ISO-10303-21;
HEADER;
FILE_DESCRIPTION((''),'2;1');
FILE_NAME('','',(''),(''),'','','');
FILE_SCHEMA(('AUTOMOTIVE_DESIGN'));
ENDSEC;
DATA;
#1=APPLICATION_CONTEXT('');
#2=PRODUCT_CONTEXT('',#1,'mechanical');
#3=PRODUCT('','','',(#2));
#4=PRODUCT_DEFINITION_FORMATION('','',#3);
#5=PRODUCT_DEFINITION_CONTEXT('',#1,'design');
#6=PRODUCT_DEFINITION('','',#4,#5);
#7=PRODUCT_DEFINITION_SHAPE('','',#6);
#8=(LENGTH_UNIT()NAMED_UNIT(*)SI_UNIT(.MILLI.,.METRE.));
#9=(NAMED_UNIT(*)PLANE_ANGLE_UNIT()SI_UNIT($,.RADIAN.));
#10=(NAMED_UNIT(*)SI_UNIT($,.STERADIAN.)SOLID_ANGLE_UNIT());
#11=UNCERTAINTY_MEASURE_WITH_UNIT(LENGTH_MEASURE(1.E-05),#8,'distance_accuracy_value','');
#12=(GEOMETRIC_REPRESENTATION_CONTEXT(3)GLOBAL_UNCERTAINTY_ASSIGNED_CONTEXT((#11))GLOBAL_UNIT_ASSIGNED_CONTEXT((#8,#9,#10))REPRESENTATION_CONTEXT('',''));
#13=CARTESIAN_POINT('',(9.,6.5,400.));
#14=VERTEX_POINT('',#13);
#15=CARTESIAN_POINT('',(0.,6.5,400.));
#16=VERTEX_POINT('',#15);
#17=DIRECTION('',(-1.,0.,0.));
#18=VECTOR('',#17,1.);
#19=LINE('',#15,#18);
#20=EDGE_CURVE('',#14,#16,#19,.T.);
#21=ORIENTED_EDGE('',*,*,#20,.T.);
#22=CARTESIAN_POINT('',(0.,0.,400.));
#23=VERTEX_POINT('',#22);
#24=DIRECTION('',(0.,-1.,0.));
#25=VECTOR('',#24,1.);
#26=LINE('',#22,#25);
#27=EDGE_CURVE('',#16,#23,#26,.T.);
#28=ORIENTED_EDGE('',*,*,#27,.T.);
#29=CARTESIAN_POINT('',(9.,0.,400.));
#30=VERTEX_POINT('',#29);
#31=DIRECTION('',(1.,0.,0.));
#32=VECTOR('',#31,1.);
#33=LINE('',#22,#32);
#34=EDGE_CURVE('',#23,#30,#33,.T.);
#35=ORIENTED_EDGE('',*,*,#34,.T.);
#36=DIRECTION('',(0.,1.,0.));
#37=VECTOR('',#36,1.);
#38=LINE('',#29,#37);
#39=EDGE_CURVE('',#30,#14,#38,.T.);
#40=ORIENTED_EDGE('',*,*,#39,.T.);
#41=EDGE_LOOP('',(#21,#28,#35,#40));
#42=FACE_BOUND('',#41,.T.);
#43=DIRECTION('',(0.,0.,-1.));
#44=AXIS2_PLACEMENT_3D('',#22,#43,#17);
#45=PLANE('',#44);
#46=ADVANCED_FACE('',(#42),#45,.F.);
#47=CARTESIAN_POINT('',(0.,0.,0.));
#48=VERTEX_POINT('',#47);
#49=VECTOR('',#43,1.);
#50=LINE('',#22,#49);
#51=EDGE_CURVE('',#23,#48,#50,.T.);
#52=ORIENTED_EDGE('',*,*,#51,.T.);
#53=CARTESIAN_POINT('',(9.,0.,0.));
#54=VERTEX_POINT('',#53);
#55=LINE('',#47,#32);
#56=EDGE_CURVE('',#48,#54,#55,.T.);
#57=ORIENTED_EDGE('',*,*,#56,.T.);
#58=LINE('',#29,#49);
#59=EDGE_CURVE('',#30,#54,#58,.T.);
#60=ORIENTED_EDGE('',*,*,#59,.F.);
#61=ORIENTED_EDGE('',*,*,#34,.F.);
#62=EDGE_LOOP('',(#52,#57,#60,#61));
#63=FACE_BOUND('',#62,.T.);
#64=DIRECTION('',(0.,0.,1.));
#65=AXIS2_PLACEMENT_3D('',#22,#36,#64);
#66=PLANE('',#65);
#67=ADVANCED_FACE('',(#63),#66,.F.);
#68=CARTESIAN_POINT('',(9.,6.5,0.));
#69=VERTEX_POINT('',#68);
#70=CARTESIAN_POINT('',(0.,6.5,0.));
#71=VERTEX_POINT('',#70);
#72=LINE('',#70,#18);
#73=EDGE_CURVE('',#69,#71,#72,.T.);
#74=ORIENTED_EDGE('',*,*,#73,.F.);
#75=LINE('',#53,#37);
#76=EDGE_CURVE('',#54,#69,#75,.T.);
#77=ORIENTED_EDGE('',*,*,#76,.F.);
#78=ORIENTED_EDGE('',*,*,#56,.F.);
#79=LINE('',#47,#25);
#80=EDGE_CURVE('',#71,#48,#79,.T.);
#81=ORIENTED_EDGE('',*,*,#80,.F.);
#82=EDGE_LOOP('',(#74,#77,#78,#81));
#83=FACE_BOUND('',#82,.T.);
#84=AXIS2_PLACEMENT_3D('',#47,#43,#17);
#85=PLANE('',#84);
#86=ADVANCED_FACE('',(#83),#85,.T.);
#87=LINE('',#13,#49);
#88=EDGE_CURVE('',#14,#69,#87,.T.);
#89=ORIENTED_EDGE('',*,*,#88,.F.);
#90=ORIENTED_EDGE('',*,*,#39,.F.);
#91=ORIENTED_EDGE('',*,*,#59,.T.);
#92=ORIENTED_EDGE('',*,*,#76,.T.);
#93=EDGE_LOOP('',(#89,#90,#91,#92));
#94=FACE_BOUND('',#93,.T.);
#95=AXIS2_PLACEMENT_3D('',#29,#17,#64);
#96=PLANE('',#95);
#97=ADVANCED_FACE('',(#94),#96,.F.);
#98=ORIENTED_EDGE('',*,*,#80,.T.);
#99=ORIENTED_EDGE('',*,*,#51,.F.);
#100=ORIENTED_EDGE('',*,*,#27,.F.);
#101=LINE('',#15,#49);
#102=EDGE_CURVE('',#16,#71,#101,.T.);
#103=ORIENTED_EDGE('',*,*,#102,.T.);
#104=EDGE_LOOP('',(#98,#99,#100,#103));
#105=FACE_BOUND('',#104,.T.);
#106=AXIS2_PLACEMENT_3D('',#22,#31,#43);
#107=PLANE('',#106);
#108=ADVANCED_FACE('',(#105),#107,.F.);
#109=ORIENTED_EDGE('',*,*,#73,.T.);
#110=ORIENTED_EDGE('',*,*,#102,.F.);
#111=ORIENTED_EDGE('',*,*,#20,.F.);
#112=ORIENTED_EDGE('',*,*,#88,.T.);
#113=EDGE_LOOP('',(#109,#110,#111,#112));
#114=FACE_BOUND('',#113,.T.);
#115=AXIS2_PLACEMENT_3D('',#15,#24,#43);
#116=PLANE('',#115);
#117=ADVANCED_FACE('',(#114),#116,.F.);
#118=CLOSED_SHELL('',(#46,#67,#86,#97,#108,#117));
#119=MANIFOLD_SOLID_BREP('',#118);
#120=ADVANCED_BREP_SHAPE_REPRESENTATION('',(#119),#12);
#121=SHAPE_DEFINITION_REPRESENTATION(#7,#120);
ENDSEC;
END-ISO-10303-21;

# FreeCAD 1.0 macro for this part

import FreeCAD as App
import Part
import Sketcher
from FreeCAD import Vector

doc = App.newDocument("Part")
body = doc.addObject("PartDesign::Body", "Body")

# Sketch on XY plane
sketch1 = body.newObject("Sketcher::SketchObject", "Sketch")
sketch1.AttachmentSupport = (doc.getObject("XY_Plane"), [""])
sketch1.MapMode = "FlatFace"
sketch1.addGeometry(Part.LineSegment(Vector(0, 6, 0), Vector(0, 0, 0)), False)
sketch1.addGeometry(Part.LineSegment(Vector(0, 0, 0), Vector(9, 0, 0)), False)
sketch1.addGeometry(Part.LineSegment(Vector(9, 0, 0), Vector(9, 6, 0)), False)
sketch1.addGeometry(Part.LineSegment(Vector(9, 6, 0), Vector(0, 6, 0)), False)
sketch1.addConstraint(Sketcher.Constraint("Coincident", 0, 2, 1, 1))
sketch1.addConstraint(Sketcher.Constraint("Coincident", 1, 2, 2, 1))
sketch1.addConstraint(Sketcher.Constraint("Coincident", 2, 2, 3, 1))
sketch1.addConstraint(Sketcher.Constraint("Coincident", 3, 2, 0, 1))
sketch1.addConstraint(Sketcher.Constraint("Vertical", 0))
sketch1.addConstraint(Sketcher.Constraint("Horizontal", 1))
sketch1.addConstraint(Sketcher.Constraint("Vertical", 2))
sketch1.addConstraint(Sketcher.Constraint("Horizontal", 3))
sketch1.addConstraint(Sketcher.Constraint("Coincident", 0, 2, -1, 1))
sketch1.addConstraint(Sketcher.Constraint("DistanceX", 1, 1, 1, 2, 9.0))
sketch1.addConstraint(Sketcher.Constraint("DistanceY", 0, 2, 0, 1, 6.5))
pad1 = body.newObject("PartDesign::Pad", "Pad")
pad1.Profile = sketch1
pad1.Length = 400

doc.recompute()
